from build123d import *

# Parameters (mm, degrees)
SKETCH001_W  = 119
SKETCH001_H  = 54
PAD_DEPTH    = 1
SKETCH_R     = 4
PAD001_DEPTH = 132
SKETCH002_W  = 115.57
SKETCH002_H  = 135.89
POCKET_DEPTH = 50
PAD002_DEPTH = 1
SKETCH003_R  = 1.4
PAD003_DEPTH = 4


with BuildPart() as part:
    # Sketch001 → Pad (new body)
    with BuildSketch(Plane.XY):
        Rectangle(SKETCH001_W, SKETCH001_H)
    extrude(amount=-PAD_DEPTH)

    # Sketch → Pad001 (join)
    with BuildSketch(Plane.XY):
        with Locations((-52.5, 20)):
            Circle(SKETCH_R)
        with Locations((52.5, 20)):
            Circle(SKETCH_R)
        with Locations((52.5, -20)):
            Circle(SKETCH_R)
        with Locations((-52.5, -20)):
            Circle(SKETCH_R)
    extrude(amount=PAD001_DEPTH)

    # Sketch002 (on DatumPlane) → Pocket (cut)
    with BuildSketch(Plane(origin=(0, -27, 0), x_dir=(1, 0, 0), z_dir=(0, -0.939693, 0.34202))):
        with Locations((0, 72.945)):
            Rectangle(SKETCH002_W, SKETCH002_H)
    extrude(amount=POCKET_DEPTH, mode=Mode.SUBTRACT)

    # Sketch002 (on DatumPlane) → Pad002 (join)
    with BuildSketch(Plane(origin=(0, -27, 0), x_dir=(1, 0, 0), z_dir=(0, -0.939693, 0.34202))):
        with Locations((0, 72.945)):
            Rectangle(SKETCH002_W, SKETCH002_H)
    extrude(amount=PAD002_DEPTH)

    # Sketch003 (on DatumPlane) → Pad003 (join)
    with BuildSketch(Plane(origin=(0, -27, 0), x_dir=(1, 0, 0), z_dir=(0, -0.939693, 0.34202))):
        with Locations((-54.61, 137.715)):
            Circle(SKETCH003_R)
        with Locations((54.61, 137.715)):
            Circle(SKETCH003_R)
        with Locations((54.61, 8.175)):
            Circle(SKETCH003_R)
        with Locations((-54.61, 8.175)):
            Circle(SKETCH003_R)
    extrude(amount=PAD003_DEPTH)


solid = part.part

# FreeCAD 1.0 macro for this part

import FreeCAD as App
import Part
import Sketcher
from FreeCAD import Vector

doc = App.newDocument("Part")
body = doc.addObject("PartDesign::Body", "Body")

# Sketch on XY plane
sketch1 = body.newObject("Sketcher::SketchObject", "Sketch")
sketch1.AttachmentSupport = (doc.getObject("XY_Plane"), [""])
sketch1.MapMode = "FlatFace"
sketch1.addGeometry([
    Part.LineSegment(Vector(-60, 27, 0), Vector(-60, -27, 0)),
    Part.LineSegment(Vector(-60, -27, 0), Vector(60, -27, 0)),
    Part.LineSegment(Vector(60, -27, 0), Vector(60, 27, 0)),
    Part.LineSegment(Vector(60, 27, 0), Vector(-60, 27, 0)),
], False)
sketch1.addConstraint([
    Sketcher.Constraint("Coincident", 0, 2, 1, 1),
    Sketcher.Constraint("Coincident", 1, 2, 2, 1),
    Sketcher.Constraint("Coincident", 2, 2, 3, 1),
    Sketcher.Constraint("Coincident", 3, 2, 0, 1),
    Sketcher.Constraint("Vertical", 0),
    Sketcher.Constraint("Horizontal", 1),
    Sketcher.Constraint("Vertical", 2),
    Sketcher.Constraint("Horizontal", 3),
    Sketcher.Constraint("Symmetric", 0, 2, 2, 2, -1, 1),
    Sketcher.Constraint("DistanceX", 1, 1, 1, 2, 119.0),
    Sketcher.Constraint("DistanceY", 0, 2, 0, 1, 54.0),
])
pad1 = body.newObject("PartDesign::Pad", "Pad")
pad1.Profile = sketch1
pad1.Length = 1
pad1.Reversed = True

# Sketch on XY plane
sketch2 = body.newObject("Sketcher::SketchObject", "Sketch001")
sketch2.AttachmentSupport = (doc.getObject("XY_Plane"), [""])
sketch2.MapMode = "FlatFace"
sketch2.addGeometry([
    Part.Circle(Vector(-52.5, 20, 0), Vector(0, 0, 1), 4),
    Part.Circle(Vector(52.5, 20, 0), Vector(0, 0, 1), 4),
    Part.Circle(Vector(52.5, -20, 0), Vector(0, 0, 1), 4),
    Part.Circle(Vector(-52.5, -20, 0), Vector(0, 0, 1), 4),
], False)
sketch2.addConstraint([
    Sketcher.Constraint("Equal", 0, 1),
    Sketcher.Constraint("Equal", 1, 2),
    Sketcher.Constraint("Equal", 2, 3),
    Sketcher.Constraint("Symmetric", 0, 3, 2, 3, -1, 1),
    Sketcher.Constraint("Symmetric", 1, 3, 3, 3, -1, 1),
    Sketcher.Constraint("Symmetric", 0, 3, 1, 3, -2),
    Sketcher.Constraint("Diameter", 0, 8.0),
    Sketcher.Constraint("DistanceY", -1, 1, 0, 3, 20.0),
    Sketcher.Constraint("DistanceX", 0, 3, 1, 3, 105.0),
])
pad2 = body.newObject("PartDesign::Pad", "Pad001")
pad2.Profile = sketch2
pad2.Length = 132

# Sketch on an angled plane
sketch3 = body.newObject("Sketcher::SketchObject", "Sketch002")
sketch3.Placement = App.Placement(Vector(0, -27, 0), App.Rotation(Vector(1, 0, 0), Vector(0, 0.342019895, 0.939692711), Vector(0, -0.939692711, 0.342019895), "ZXY"))
sketch3.addGeometry([
    Part.LineSegment(Vector(-58, 141, 0), Vector(-58, 5, 0)),
    Part.LineSegment(Vector(-58, 5, 0), Vector(58, 5, 0)),
    Part.LineSegment(Vector(58, 5, 0), Vector(58, 141, 0)),
    Part.LineSegment(Vector(58, 141, 0), Vector(-58, 141, 0)),
], False)
sketch3.addConstraint([
    Sketcher.Constraint("Coincident", 0, 2, 1, 1),
    Sketcher.Constraint("Coincident", 1, 2, 2, 1),
    Sketcher.Constraint("Coincident", 2, 2, 3, 1),
    Sketcher.Constraint("Coincident", 3, 2, 0, 1),
    Sketcher.Constraint("Vertical", 0),
    Sketcher.Constraint("Horizontal", 1),
    Sketcher.Constraint("Vertical", 2),
    Sketcher.Constraint("Horizontal", 3),
    Sketcher.Constraint("DistanceY", -1, 1, 0, 2, 5.0),
    Sketcher.Constraint("DistanceX", 1, 1, 1, 2, 115.57),
    Sketcher.Constraint("DistanceY", 0, 2, 0, 1, 135.89),
    Sketcher.Constraint("DistanceX", 0, 2, -1, 1, 57.785),
])
pocket1 = body.newObject("PartDesign::Pocket", "Pocket")
pocket1.Profile = sketch3
pocket1.Length = 50
pocket1.Reversed = True

# Sketch on an angled plane
sketch4 = body.newObject("Sketcher::SketchObject", "Sketch003")
sketch4.Placement = App.Placement(Vector(0, -27, 0), App.Rotation(Vector(1, 0, 0), Vector(0, 0.342019895, 0.939692711), Vector(0, -0.939692711, 0.342019895), "ZXY"))
sketch4.addGeometry([
    Part.LineSegment(Vector(-58, 141, 0), Vector(-58, 5, 0)),
    Part.LineSegment(Vector(-58, 5, 0), Vector(58, 5, 0)),
    Part.LineSegment(Vector(58, 5, 0), Vector(58, 141, 0)),
    Part.LineSegment(Vector(58, 141, 0), Vector(-58, 141, 0)),
], False)
sketch4.addConstraint([
    Sketcher.Constraint("Coincident", 0, 2, 1, 1),
    Sketcher.Constraint("Coincident", 1, 2, 2, 1),
    Sketcher.Constraint("Coincident", 2, 2, 3, 1),
    Sketcher.Constraint("Coincident", 3, 2, 0, 1),
    Sketcher.Constraint("Vertical", 0),
    Sketcher.Constraint("Horizontal", 1),
    Sketcher.Constraint("Vertical", 2),
    Sketcher.Constraint("Horizontal", 3),
    Sketcher.Constraint("DistanceY", -1, 1, 0, 2, 5.0),
    Sketcher.Constraint("DistanceX", 1, 1, 1, 2, 115.57),
    Sketcher.Constraint("DistanceY", 0, 2, 0, 1, 135.89),
    Sketcher.Constraint("DistanceX", 0, 2, -1, 1, 57.785),
])
pad3 = body.newObject("PartDesign::Pad", "Pad002")
pad3.Profile = sketch4
pad3.Length = 1

# Sketch on an angled plane
sketch5 = body.newObject("Sketcher::SketchObject", "Sketch004")
sketch5.Placement = App.Placement(Vector(0, -27, 0), App.Rotation(Vector(1, 0, 0), Vector(0, 0.342019895, 0.939692711), Vector(0, -0.939692711, 0.342019895), "ZXY"))
sketch5.addGeometry([
    Part.Circle(Vector(-54.6, 137.7, 0), Vector(0, 0, 1), 1.4),
    Part.Circle(Vector(54.6, 137.7, 0), Vector(0, 0, 1), 1.4),
    Part.Circle(Vector(54.6, 8.2, 0), Vector(0, 0, 1), 1.4),
    Part.Circle(Vector(-54.6, 8.2, 0), Vector(0, 0, 1), 1.4),
], False)
sketch5.addConstraint([
    Sketcher.Constraint("Equal", 0, 1),
    Sketcher.Constraint("Equal", 1, 2),
    Sketcher.Constraint("Equal", 2, 3),
    Sketcher.Constraint("Symmetric", 0, 3, 1, 3, -2),
    Sketcher.Constraint("Symmetric", 2, 3, 3, 3, -2),
    Sketcher.Constraint("Vertical", 1, 3, 2, 3),
    Sketcher.Constraint("Diameter", 0, 2.8),
    Sketcher.Constraint("DistanceX", 0, 3, -1, 1, 54.61),
    Sketcher.Constraint("DistanceY", 2, 3, 1, 3, 129.54),
    Sketcher.Constraint("DistanceY", -1, 1, 0, 3, 137.715),
])
pad4 = body.newObject("PartDesign::Pad", "Pad003")
pad4.Profile = sketch5
pad4.Length = 4

doc.recompute()
